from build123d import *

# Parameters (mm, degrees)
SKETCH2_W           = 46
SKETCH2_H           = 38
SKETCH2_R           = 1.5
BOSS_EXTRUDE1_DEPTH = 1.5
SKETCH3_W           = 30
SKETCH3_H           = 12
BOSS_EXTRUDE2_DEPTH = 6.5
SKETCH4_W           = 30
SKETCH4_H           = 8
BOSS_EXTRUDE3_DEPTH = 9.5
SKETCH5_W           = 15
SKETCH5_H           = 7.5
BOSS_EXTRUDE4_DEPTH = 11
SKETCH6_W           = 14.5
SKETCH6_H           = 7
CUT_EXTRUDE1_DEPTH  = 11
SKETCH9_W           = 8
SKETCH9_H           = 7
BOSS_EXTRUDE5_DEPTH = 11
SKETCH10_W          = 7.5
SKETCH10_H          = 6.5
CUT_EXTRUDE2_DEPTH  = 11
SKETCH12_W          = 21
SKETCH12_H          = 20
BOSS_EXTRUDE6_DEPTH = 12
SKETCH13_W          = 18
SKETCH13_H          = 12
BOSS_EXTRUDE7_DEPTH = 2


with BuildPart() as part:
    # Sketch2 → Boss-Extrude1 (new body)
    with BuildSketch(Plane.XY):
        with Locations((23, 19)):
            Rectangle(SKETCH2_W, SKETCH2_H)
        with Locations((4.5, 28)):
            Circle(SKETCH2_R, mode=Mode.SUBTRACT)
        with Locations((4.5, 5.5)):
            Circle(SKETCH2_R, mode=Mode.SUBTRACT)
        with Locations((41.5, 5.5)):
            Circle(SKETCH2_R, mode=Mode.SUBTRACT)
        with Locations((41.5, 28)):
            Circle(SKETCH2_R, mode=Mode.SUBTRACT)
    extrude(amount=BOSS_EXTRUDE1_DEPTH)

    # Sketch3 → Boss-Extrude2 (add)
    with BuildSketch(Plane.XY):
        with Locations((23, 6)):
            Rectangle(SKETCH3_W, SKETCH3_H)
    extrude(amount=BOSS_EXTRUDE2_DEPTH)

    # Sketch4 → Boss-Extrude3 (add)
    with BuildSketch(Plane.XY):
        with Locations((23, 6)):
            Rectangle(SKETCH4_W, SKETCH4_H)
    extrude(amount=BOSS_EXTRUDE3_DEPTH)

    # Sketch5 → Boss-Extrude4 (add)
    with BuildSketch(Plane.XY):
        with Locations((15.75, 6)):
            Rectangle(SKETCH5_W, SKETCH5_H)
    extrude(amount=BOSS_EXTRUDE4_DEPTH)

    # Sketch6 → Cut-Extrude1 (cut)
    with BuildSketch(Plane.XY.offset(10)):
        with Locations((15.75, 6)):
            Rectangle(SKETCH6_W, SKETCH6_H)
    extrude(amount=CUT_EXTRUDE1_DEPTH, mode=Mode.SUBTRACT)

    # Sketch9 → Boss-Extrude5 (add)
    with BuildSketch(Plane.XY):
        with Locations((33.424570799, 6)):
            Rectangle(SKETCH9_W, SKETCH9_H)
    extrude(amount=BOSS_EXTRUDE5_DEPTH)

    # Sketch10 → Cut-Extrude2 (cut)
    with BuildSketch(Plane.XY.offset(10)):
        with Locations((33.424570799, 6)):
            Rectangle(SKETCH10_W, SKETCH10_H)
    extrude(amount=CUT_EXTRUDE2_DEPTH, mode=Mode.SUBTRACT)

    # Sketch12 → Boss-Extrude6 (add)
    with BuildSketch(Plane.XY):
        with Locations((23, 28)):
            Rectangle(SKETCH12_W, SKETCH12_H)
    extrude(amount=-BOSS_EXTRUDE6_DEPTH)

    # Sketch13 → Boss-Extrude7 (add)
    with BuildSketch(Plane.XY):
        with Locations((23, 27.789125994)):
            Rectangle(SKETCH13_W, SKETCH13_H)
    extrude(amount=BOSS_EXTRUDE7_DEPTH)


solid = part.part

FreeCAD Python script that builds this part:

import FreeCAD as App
import Part
import Sketcher
from FreeCAD import Vector
Q = App.Units.Quantity


def add_polygon(sketch, points):
    """Adds a closed chain of lines whose ends are joined by coincident constraints."""
    first, n = sketch.GeometryCount, len(points)
    for a, b in zip(points, points[1:] + points[:1]):
        sketch.addGeometry(Part.LineSegment(App.Vector(*a, 0), App.Vector(*b, 0)), False)
    for i in range(n):
        sketch.addConstraint(Sketcher.Constraint("Coincident", first + i, 2, first + (i + 1) % n, 1))

doc = App.newDocument("Part")
body = doc.addObject("PartDesign::Body", "Body")

sketch1 = doc.addObject("Sketcher::SketchObject", "Sketch")
body.addObject(sketch1)
sketch1.AttachmentSupport = (doc.XY_Plane, [""])
sketch1.MapMode = "FlatFace"
add_polygon(sketch1, [(0, 38), (0, 0), (46, 0), (46, 38)])
sketch1.addGeometry(Part.Circle(Vector(4.5, 5.5, 0), Vector(0, 0, 1), 1.5), False)
sketch1.addGeometry(Part.Circle(Vector(41.5, 5.5, 0), Vector(0, 0, 1), 1.5), False)
sketch1.addGeometry(Part.Circle(Vector(4.5, 28, 0), Vector(0, 0, 1), 1.5), False)
sketch1.addGeometry(Part.Circle(Vector(41.5, 28, 0), Vector(0, 0, 1), 1.5), False)
sketch1.addConstraint(Sketcher.Constraint("Vertical", 0))
sketch1.addConstraint(Sketcher.Constraint("Horizontal", 1))
sketch1.addConstraint(Sketcher.Constraint("Vertical", 2))
sketch1.addConstraint(Sketcher.Constraint("Horizontal", 3))
sketch1.addConstraint(Sketcher.Constraint("Coincident", 0, 2, -1, 1))
sketch1.addConstraint(Sketcher.Constraint("Equal", 4, 5))
sketch1.addConstraint(Sketcher.Constraint("Equal", 5, 6))
sketch1.addConstraint(Sketcher.Constraint("Equal", 6, 7))
sketch1.addConstraint(Sketcher.Constraint("Horizontal", 4, 3, 5, 3))
sketch1.addConstraint(Sketcher.Constraint("Horizontal", 6, 3, 7, 3))
sketch1.addConstraint(Sketcher.Constraint("Vertical", 4, 3, 6, 3))
sketch1.addConstraint(Sketcher.Constraint("Vertical", 5, 3, 7, 3))
sketch1.addConstraint(Sketcher.Constraint("Diameter", 4, Q("3 mm")))
sketch1.addConstraint(Sketcher.Constraint("DistanceX", 1, 1, 1, 2, Q("46 mm")))
sketch1.addConstraint(Sketcher.Constraint("DistanceY", 0, 2, 0, 1, Q("38 mm")))
sketch1.addConstraint(Sketcher.Constraint("DistanceY", -1, 1, 6, 3, Q("28 mm")))
sketch1.addConstraint(Sketcher.Constraint("DistanceX", 4, 3, 5, 3, Q("37 mm")))
sketch1.addConstraint(Sketcher.Constraint("DistanceX", -1, 1, 4, 3, Q("4.5 mm")))
sketch1.addConstraint(Sketcher.Constraint("DistanceY", -1, 1, 4, 3, Q("5.5 mm")))
pad1 = doc.addObject("PartDesign::Pad", "Pad")
body.addObject(pad1)
pad1.Profile = sketch1
pad1.Length = 1.5

sketch2 = doc.addObject("Sketcher::SketchObject", "Sketch001")
body.addObject(sketch2)
sketch2.AttachmentSupport = (doc.XY_Plane, [""])
sketch2.MapMode = "FlatFace"
add_polygon(sketch2, [(8, 12), (8, 0), (38, 0), (38, 12)])
sketch2.addConstraint(Sketcher.Constraint("Vertical", 0))
sketch2.addConstraint(Sketcher.Constraint("Horizontal", 1))
sketch2.addConstraint(Sketcher.Constraint("Vertical", 2))
sketch2.addConstraint(Sketcher.Constraint("Horizontal", 3))
sketch2.addConstraint(Sketcher.Constraint("PointOnObject", 0, 2, -1))
sketch2.addConstraint(Sketcher.Constraint("DistanceX", 1, 1, 1, 2, Q("30 mm")))
sketch2.addConstraint(Sketcher.Constraint("DistanceY", 0, 2, 0, 1, Q("12 mm")))
sketch2.addConstraint(Sketcher.Constraint("DistanceX", -1, 1, 0, 2, Q("8 mm")))
pad2 = doc.addObject("PartDesign::Pad", "Pad001")
body.addObject(pad2)
pad2.Profile = sketch2
pad2.Length = 6.5

sketch3 = doc.addObject("Sketcher::SketchObject", "Sketch002")
body.addObject(sketch3)
sketch3.AttachmentSupport = (doc.XY_Plane, [""])
sketch3.MapMode = "FlatFace"
add_polygon(sketch3, [(8, 10), (8, 2), (38, 2), (38, 10)])
sketch3.addConstraint(Sketcher.Constraint("Vertical", 0))
sketch3.addConstraint(Sketcher.Constraint("Horizontal", 1))
sketch3.addConstraint(Sketcher.Constraint("Vertical", 2))
sketch3.addConstraint(Sketcher.Constraint("Horizontal", 3))
sketch3.addConstraint(Sketcher.Constraint("DistanceX", 1, 1, 1, 2, Q("30 mm")))
sketch3.addConstraint(Sketcher.Constraint("DistanceY", 0, 2, 0, 1, Q("8 mm")))
sketch3.addConstraint(Sketcher.Constraint("DistanceX", -1, 1, 0, 2, Q("8 mm")))
sketch3.addConstraint(Sketcher.Constraint("DistanceY", -1, 1, 0, 2, Q("2 mm")))
pad3 = doc.addObject("PartDesign::Pad", "Pad002")
body.addObject(pad3)
pad3.Profile = sketch3
pad3.Length = 9.5

sketch4 = doc.addObject("Sketcher::SketchObject", "Sketch003")
body.addObject(sketch4)
sketch4.AttachmentSupport = (doc.XY_Plane, [""])
sketch4.MapMode = "FlatFace"
add_polygon(sketch4, [(8, 10), (8, 2), (23, 2), (23, 10)])
sketch4.addConstraint(Sketcher.Constraint("Vertical", 0))
sketch4.addConstraint(Sketcher.Constraint("Horizontal", 1))
sketch4.addConstraint(Sketcher.Constraint("Vertical", 2))
sketch4.addConstraint(Sketcher.Constraint("Horizontal", 3))
sketch4.addConstraint(Sketcher.Constraint("DistanceX", 1, 1, 1, 2, Q("15 mm")))
sketch4.addConstraint(Sketcher.Constraint("DistanceY", 0, 2, 0, 1, Q("7.5 mm")))
sketch4.addConstraint(Sketcher.Constraint("DistanceX", -1, 1, 0, 2, Q("8.25 mm")))
sketch4.addConstraint(Sketcher.Constraint("DistanceY", -1, 1, 0, 2, Q("2.25 mm")))
pad4 = doc.addObject("PartDesign::Pad", "Pad003")
body.addObject(pad4)
pad4.Profile = sketch4
pad4.Length = 11

sketch5 = doc.addObject("Sketcher::SketchObject", "Sketch004")
body.addObject(sketch5)
sketch5.AttachmentSupport = (doc.XY_Plane, [""])
sketch5.MapMode = "FlatFace"
sketch5.AttachmentOffset = App.Placement(Vector(0, 0, 10), App.Rotation())
add_polygon(sketch5, [(8, 10), (8, 2), (23, 2), (23, 10)])
sketch5.addConstraint(Sketcher.Constraint("Vertical", 0))
sketch5.addConstraint(Sketcher.Constraint("Horizontal", 1))
sketch5.addConstraint(Sketcher.Constraint("Vertical", 2))
sketch5.addConstraint(Sketcher.Constraint("Horizontal", 3))
sketch5.addConstraint(Sketcher.Constraint("DistanceY", 0, 2, 0, 1, Q("7 mm")))
sketch5.addConstraint(Sketcher.Constraint("DistanceX", 1, 1, 1, 2, Q("14.5 mm")))
sketch5.addConstraint(Sketcher.Constraint("DistanceX", -1, 1, 1, 2, Q("23 mm")))
sketch5.addConstraint(Sketcher.Constraint("DistanceY", -1, 1, 0, 2, Q("2.5 mm")))
pocket1 = doc.addObject("PartDesign::Pocket", "Pocket")
body.addObject(pocket1)
pocket1.Profile = sketch5
pocket1.Length = 11
pocket1.Reversed = True

sketch6 = doc.addObject("Sketcher::SketchObject", "Sketch005")
body.addObject(sketch6)
sketch6.AttachmentSupport = (doc.XY_Plane, [""])
sketch6.MapMode = "FlatFace"
add_polygon(sketch6, [(29, 10), (29, 2), (37, 2), (37, 10)])
sketch6.addConstraint(Sketcher.Constraint("Vertical", 0))
sketch6.addConstraint(Sketcher.Constraint("Horizontal", 1))
sketch6.addConstraint(Sketcher.Constraint("Vertical", 2))
sketch6.addConstraint(Sketcher.Constraint("Horizontal", 3))
sketch6.addConstraint(Sketcher.Constraint("DistanceX", 1, 1, 1, 2, Q("8 mm")))
sketch6.addConstraint(Sketcher.Constraint("DistanceY", 0, 2, 0, 1, Q("7 mm")))
sketch6.addConstraint(Sketcher.Constraint("DistanceY", -1, 1, 0, 2, Q("2.5 mm")))
sketch6.addConstraint(Sketcher.Constraint("DistanceX", -1, 1, 0, 2, Q("29.424571 mm")))
pad5 = doc.addObject("PartDesign::Pad", "Pad004")
body.addObject(pad5)
pad5.Profile = sketch6
pad5.Length = 11

sketch7 = doc.addObject("Sketcher::SketchObject", "Sketch006")
body.addObject(sketch7)
sketch7.AttachmentSupport = (doc.XY_Plane, [""])
sketch7.MapMode = "FlatFace"
sketch7.AttachmentOffset = App.Placement(Vector(0, 0, 10), App.Rotation())
add_polygon(sketch7, [(30, 9), (30, 3), (37, 3), (37, 9)])
sketch7.addConstraint(Sketcher.Constraint("Vertical", 0))
sketch7.addConstraint(Sketcher.Constraint("Horizontal", 1))
sketch7.addConstraint(Sketcher.Constraint("Vertical", 2))
sketch7.addConstraint(Sketcher.Constraint("Horizontal", 3))
sketch7.addConstraint(Sketcher.Constraint("DistanceX", 1, 1, 1, 2, Q("7.5 mm")))
sketch7.addConstraint(Sketcher.Constraint("DistanceY", 0, 2, 0, 1, Q("6.5 mm")))
sketch7.addConstraint(Sketcher.Constraint("DistanceY", -1, 1, 0, 2, Q("2.75 mm")))
sketch7.addConstraint(Sketcher.Constraint("DistanceX", -1, 1, 0, 2, Q("29.674571 mm")))
pocket2 = doc.addObject("PartDesign::Pocket", "Pocket001")
body.addObject(pocket2)
pocket2.Profile = sketch7
pocket2.Length = 11
pocket2.Reversed = True

sketch8 = doc.addObject("Sketcher::SketchObject", "Sketch007")
body.addObject(sketch8)
sketch8.AttachmentSupport = (doc.XY_Plane, [""])
sketch8.MapMode = "FlatFace"
add_polygon(sketch8, [(12, 38), (12, 18), (34, 18), (34, 38)])
sketch8.addConstraint(Sketcher.Constraint("Vertical", 0))
sketch8.addConstraint(Sketcher.Constraint("Horizontal", 1))
sketch8.addConstraint(Sketcher.Constraint("Vertical", 2))
sketch8.addConstraint(Sketcher.Constraint("Horizontal", 3))
sketch8.addConstraint(Sketcher.Constraint("DistanceX", 1, 1, 1, 2, Q("21 mm")))
sketch8.addConstraint(Sketcher.Constraint("DistanceY", 0, 2, 0, 1, Q("20 mm")))
sketch8.addConstraint(Sketcher.Constraint("DistanceY", -1, 1, 0, 2, Q("18 mm")))
sketch8.addConstraint(Sketcher.Constraint("DistanceX", -1, 1, 0, 2, Q("12.5 mm")))
pad6 = doc.addObject("PartDesign::Pad", "Pad005")
body.addObject(pad6)
pad6.Profile = sketch8
pad6.Length = 12
pad6.Reversed = True

sketch9 = doc.addObject("Sketcher::SketchObject", "Sketch008")
body.addObject(sketch9)
sketch9.AttachmentSupport = (doc.XY_Plane, [""])
sketch9.MapMode = "FlatFace"
add_polygon(sketch9, [(14, 34), (14, 22), (32, 22), (32, 34)])
sketch9.addConstraint(Sketcher.Constraint("Vertical", 0))
sketch9.addConstraint(Sketcher.Constraint("Horizontal", 1))
sketch9.addConstraint(Sketcher.Constraint("Vertical", 2))
sketch9.addConstraint(Sketcher.Constraint("Horizontal", 3))
sketch9.addConstraint(Sketcher.Constraint("DistanceX", 1, 1, 1, 2, Q("18 mm")))
sketch9.addConstraint(Sketcher.Constraint("DistanceY", 0, 2, 0, 1, Q("12 mm")))
sketch9.addConstraint(Sketcher.Constraint("DistanceX", -1, 1, 0, 2, Q("14 mm")))
sketch9.addConstraint(Sketcher.Constraint("DistanceY", -1, 1, 0, 2, Q("21.789126 mm")))
pad7 = doc.addObject("PartDesign::Pad", "Pad006")
body.addObject(pad7)
pad7.Profile = sketch9
pad7.Length = 2

doc.recompute()
